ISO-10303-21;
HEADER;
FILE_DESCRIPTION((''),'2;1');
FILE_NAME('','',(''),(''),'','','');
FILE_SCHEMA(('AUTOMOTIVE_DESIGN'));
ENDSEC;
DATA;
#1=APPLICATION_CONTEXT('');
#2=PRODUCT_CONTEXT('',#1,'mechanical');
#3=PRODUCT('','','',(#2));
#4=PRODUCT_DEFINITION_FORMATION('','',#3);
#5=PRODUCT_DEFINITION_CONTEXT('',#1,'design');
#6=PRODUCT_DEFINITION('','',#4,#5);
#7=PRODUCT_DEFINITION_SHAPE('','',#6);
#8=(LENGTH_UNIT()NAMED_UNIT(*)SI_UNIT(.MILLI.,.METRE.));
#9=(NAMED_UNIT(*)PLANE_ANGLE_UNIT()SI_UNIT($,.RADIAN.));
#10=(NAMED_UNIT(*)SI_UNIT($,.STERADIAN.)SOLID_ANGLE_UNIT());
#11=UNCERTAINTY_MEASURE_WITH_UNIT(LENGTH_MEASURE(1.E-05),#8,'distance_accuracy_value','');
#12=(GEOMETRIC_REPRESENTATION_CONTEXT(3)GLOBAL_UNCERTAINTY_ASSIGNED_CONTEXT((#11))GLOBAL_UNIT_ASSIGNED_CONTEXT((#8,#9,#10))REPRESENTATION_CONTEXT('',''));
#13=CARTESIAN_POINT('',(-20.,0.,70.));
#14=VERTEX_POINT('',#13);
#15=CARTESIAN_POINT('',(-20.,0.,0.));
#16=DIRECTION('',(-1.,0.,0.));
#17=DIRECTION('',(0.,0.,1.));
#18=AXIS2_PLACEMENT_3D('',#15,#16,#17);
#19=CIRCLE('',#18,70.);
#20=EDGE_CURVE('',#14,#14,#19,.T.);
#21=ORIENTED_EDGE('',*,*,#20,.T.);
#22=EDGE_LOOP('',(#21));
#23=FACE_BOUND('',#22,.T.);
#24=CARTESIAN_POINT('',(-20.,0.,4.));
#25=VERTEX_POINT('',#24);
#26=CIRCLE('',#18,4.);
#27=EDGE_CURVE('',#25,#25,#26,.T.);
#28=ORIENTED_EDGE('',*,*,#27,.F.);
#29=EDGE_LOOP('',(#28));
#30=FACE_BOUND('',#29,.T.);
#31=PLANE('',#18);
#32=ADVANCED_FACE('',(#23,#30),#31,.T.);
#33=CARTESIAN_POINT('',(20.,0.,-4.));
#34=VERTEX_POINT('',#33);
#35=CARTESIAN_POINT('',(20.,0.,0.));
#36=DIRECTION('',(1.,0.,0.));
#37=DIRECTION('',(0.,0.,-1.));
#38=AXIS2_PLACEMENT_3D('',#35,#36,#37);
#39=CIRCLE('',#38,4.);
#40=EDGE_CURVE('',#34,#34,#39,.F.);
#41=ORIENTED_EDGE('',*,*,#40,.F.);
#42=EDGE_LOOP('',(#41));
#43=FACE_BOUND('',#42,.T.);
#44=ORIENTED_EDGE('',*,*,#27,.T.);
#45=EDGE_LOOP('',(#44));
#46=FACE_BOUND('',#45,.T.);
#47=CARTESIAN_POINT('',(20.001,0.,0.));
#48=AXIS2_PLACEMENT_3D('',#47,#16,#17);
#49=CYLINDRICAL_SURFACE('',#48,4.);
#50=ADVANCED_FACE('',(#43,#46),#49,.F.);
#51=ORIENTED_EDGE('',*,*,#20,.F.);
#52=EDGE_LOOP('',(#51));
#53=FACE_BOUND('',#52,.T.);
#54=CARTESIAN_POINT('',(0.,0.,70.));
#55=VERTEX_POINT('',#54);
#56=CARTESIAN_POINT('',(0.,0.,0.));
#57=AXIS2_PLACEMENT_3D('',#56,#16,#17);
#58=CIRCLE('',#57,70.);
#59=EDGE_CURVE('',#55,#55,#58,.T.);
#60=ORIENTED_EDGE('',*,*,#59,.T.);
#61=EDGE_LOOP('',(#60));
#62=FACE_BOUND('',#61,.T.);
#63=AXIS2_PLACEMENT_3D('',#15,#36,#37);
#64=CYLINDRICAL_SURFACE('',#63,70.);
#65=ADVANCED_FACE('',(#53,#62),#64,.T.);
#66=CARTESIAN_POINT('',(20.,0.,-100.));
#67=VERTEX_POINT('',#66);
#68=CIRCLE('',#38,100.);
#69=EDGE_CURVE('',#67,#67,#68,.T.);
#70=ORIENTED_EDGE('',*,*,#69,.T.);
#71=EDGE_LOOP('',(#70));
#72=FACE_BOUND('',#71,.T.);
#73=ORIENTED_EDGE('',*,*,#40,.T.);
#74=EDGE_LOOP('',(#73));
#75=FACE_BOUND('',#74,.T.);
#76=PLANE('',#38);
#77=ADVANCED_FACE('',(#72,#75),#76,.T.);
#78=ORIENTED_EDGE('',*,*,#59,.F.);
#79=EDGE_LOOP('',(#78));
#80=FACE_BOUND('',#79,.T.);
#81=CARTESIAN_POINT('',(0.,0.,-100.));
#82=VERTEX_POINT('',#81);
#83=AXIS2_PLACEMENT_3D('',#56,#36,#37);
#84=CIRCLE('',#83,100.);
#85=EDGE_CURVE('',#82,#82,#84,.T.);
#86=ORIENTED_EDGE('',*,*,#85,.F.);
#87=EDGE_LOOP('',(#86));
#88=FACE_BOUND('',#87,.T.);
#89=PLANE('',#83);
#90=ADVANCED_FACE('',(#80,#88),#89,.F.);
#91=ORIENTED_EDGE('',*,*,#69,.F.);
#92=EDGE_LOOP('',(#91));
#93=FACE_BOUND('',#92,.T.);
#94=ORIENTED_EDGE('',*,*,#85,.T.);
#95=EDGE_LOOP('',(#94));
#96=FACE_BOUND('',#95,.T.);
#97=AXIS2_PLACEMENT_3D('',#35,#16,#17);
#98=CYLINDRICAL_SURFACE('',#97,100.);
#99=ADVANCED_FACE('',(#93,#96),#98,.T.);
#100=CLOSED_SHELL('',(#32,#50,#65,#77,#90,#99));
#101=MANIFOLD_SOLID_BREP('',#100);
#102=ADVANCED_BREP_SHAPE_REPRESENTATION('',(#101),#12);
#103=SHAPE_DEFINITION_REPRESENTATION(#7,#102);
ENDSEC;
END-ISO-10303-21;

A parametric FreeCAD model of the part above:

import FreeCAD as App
import Part
import Sketcher
Q = App.Units.Quantity

doc = App.newDocument("Part")
body = doc.addObject("PartDesign::Body", "Body")

sketch1 = body.newObject("Sketcher::SketchObject", "Sketch")
sketch1.AttachmentSupport = (doc.getObject("YZ_Plane"), [""])
sketch1.MapMode = "FlatFace"
sketch1.addGeometry(Part.Circle(App.Vector(0, 0, 0), App.Vector(0, 0, 1), 100), False)
sketch1.addConstraint(Sketcher.Constraint("Coincident", 0, 3, -1, 1))
sketch1.addConstraint(Sketcher.Constraint("Diameter", 0, Q("200 mm")))
pad1 = body.newObject("PartDesign::Pad", "Pad")
pad1.Profile = sketch1
pad1.Length = 20

sketch2 = body.newObject("Sketcher::SketchObject", "Sketch001")
sketch2.AttachmentSupport = (doc.getObject("YZ_Plane"), [""])
sketch2.MapMode = "FlatFace"
sketch2.addGeometry(Part.Circle(App.Vector(0, 0, 0), App.Vector(0, 0, 1), 70), False)
sketch2.addConstraint(Sketcher.Constraint("Coincident", 0, 3, -1, 1))
sketch2.addConstraint(Sketcher.Constraint("Diameter", 0, Q("140 mm")))
pad2 = body.newObject("PartDesign::Pad", "Pad001")
pad2.Profile = sketch2
pad2.Length = 20
pad2.Reversed = True

sketch3 = body.newObject("Sketcher::SketchObject", "Sketch002")
sketch3.AttachmentSupport = (doc.getObject("YZ_Plane"), [""])
sketch3.MapMode = "FlatFace"
sketch3.AttachmentOffset = App.Placement(App.Vector(0, 0, -20), App.Rotation())
sketch3.addGeometry(Part.Circle(App.Vector(0, 0, 0), App.Vector(0, 0, 1), 4), False)
sketch3.addConstraint(Sketcher.Constraint("Coincident", 0, 3, -1, 1))
sketch3.addConstraint(Sketcher.Constraint("Diameter", 0, Q("8 mm")))
pocket1 = body.newObject("PartDesign::Pocket", "Pocket")
pocket1.Profile = sketch3
pocket1.Type = "UpToFirst"
pocket1.Reversed = True

doc.recompute()
